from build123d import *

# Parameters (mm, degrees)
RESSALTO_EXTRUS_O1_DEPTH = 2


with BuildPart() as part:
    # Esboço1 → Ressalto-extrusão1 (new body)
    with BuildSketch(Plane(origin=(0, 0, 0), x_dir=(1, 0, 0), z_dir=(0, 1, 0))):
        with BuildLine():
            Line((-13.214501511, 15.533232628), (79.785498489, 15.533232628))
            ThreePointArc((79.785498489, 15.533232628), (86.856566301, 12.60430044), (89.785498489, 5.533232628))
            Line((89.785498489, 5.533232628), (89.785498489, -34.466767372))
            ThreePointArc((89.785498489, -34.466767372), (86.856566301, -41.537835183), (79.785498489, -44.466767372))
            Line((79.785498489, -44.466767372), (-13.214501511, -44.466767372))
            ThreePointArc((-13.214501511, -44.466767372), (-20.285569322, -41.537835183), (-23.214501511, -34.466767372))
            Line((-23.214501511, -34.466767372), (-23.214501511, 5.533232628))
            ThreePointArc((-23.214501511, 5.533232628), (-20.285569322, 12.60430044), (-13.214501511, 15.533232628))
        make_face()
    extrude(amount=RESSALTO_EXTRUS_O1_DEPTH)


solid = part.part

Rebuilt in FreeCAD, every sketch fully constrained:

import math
import FreeCAD as App
import Part
import Sketcher

doc = App.newDocument("Part")
body = doc.addObject("PartDesign::Body", "Body")

sketch1 = doc.addObject("Sketcher::SketchObject", "Sketch")
body.addObject(sketch1)
sketch1.AttachmentSupport = (doc.XZ_Plane, [""])
sketch1.MapMode = "FlatFace"
sketch1.addGeometry(Part.LineSegment(App.Vector(80, -16, 0), App.Vector(-13, -16, 0)), False)
sketch1.addGeometry(Part.ArcOfCircle(Part.Circle(App.Vector(-13, -6, 0), App.Vector(0, 0, 1), 10), math.radians(-180), math.radians(-90)), False)
sketch1.addGeometry(Part.LineSegment(App.Vector(-23, -6, 0), App.Vector(-23, 34, 0)), False)
sketch1.addGeometry(Part.ArcOfCircle(Part.Circle(App.Vector(-13, 34, 0), App.Vector(0, 0, 1), 10), math.radians(90), math.radians(180)), False)
sketch1.addGeometry(Part.LineSegment(App.Vector(-13, 44, 0), App.Vector(80, 44, 0)), False)
sketch1.addGeometry(Part.ArcOfCircle(Part.Circle(App.Vector(80, 34, 0), App.Vector(0, 0, 1), 10), math.radians(0), math.radians(90)), False)
sketch1.addGeometry(Part.LineSegment(App.Vector(90, 34, 0), App.Vector(90, -6, 0)), False)
sketch1.addGeometry(Part.ArcOfCircle(Part.Circle(App.Vector(80, -6, 0), App.Vector(0, 0, 1), 10), math.radians(-90), math.radians(0)), False)
sketch1.addConstraint(Sketcher.Constraint("Tangent", 0, 2, 1, 2))
sketch1.addConstraint(Sketcher.Constraint("Tangent", 1, 1, 2, 1))
sketch1.addConstraint(Sketcher.Constraint("Tangent", 2, 2, 3, 2))
sketch1.addConstraint(Sketcher.Constraint("Tangent", 3, 1, 4, 1))
sketch1.addConstraint(Sketcher.Constraint("Tangent", 4, 2, 5, 2))
sketch1.addConstraint(Sketcher.Constraint("Tangent", 5, 1, 6, 1))
sketch1.addConstraint(Sketcher.Constraint("Tangent", 6, 2, 7, 2))
sketch1.addConstraint(Sketcher.Constraint("Tangent", 7, 1, 0, 1))
sketch1.addConstraint(Sketcher.Constraint("Horizontal", 0))
sketch1.addConstraint(Sketcher.Constraint("Vertical", 2))
sketch1.addConstraint(Sketcher.Constraint("Horizontal", 4))
sketch1.addConstraint(Sketcher.Constraint("Vertical", 6))
sketch1.addConstraint(Sketcher.Constraint("Equal", 1, 3))
sketch1.addConstraint(Sketcher.Constraint("Equal", 3, 5))
sketch1.addConstraint(Sketcher.Constraint("Equal", 5, 7))
sketch1.addConstraint(Sketcher.Constraint("Radius", 1, 10.0))
sketch1.addConstraint(Sketcher.Constraint("DistanceX", 0, 2, 0, 1, 93.0))
sketch1.addConstraint(Sketcher.Constraint("DistanceY", 2, 1, 2, 2, 40.0))
sketch1.addConstraint(Sketcher.Constraint("DistanceX", 1, 3, -1, 1, 13.214502))
sketch1.addConstraint(Sketcher.Constraint("DistanceY", 1, 3, -1, 1, 5.533233))
pad1 = doc.addObject("PartDesign::Pad", "Pad")
body.addObject(pad1)
pad1.Profile = sketch1
pad1.Length = 2
pad1.Reversed = True

doc.recompute()
